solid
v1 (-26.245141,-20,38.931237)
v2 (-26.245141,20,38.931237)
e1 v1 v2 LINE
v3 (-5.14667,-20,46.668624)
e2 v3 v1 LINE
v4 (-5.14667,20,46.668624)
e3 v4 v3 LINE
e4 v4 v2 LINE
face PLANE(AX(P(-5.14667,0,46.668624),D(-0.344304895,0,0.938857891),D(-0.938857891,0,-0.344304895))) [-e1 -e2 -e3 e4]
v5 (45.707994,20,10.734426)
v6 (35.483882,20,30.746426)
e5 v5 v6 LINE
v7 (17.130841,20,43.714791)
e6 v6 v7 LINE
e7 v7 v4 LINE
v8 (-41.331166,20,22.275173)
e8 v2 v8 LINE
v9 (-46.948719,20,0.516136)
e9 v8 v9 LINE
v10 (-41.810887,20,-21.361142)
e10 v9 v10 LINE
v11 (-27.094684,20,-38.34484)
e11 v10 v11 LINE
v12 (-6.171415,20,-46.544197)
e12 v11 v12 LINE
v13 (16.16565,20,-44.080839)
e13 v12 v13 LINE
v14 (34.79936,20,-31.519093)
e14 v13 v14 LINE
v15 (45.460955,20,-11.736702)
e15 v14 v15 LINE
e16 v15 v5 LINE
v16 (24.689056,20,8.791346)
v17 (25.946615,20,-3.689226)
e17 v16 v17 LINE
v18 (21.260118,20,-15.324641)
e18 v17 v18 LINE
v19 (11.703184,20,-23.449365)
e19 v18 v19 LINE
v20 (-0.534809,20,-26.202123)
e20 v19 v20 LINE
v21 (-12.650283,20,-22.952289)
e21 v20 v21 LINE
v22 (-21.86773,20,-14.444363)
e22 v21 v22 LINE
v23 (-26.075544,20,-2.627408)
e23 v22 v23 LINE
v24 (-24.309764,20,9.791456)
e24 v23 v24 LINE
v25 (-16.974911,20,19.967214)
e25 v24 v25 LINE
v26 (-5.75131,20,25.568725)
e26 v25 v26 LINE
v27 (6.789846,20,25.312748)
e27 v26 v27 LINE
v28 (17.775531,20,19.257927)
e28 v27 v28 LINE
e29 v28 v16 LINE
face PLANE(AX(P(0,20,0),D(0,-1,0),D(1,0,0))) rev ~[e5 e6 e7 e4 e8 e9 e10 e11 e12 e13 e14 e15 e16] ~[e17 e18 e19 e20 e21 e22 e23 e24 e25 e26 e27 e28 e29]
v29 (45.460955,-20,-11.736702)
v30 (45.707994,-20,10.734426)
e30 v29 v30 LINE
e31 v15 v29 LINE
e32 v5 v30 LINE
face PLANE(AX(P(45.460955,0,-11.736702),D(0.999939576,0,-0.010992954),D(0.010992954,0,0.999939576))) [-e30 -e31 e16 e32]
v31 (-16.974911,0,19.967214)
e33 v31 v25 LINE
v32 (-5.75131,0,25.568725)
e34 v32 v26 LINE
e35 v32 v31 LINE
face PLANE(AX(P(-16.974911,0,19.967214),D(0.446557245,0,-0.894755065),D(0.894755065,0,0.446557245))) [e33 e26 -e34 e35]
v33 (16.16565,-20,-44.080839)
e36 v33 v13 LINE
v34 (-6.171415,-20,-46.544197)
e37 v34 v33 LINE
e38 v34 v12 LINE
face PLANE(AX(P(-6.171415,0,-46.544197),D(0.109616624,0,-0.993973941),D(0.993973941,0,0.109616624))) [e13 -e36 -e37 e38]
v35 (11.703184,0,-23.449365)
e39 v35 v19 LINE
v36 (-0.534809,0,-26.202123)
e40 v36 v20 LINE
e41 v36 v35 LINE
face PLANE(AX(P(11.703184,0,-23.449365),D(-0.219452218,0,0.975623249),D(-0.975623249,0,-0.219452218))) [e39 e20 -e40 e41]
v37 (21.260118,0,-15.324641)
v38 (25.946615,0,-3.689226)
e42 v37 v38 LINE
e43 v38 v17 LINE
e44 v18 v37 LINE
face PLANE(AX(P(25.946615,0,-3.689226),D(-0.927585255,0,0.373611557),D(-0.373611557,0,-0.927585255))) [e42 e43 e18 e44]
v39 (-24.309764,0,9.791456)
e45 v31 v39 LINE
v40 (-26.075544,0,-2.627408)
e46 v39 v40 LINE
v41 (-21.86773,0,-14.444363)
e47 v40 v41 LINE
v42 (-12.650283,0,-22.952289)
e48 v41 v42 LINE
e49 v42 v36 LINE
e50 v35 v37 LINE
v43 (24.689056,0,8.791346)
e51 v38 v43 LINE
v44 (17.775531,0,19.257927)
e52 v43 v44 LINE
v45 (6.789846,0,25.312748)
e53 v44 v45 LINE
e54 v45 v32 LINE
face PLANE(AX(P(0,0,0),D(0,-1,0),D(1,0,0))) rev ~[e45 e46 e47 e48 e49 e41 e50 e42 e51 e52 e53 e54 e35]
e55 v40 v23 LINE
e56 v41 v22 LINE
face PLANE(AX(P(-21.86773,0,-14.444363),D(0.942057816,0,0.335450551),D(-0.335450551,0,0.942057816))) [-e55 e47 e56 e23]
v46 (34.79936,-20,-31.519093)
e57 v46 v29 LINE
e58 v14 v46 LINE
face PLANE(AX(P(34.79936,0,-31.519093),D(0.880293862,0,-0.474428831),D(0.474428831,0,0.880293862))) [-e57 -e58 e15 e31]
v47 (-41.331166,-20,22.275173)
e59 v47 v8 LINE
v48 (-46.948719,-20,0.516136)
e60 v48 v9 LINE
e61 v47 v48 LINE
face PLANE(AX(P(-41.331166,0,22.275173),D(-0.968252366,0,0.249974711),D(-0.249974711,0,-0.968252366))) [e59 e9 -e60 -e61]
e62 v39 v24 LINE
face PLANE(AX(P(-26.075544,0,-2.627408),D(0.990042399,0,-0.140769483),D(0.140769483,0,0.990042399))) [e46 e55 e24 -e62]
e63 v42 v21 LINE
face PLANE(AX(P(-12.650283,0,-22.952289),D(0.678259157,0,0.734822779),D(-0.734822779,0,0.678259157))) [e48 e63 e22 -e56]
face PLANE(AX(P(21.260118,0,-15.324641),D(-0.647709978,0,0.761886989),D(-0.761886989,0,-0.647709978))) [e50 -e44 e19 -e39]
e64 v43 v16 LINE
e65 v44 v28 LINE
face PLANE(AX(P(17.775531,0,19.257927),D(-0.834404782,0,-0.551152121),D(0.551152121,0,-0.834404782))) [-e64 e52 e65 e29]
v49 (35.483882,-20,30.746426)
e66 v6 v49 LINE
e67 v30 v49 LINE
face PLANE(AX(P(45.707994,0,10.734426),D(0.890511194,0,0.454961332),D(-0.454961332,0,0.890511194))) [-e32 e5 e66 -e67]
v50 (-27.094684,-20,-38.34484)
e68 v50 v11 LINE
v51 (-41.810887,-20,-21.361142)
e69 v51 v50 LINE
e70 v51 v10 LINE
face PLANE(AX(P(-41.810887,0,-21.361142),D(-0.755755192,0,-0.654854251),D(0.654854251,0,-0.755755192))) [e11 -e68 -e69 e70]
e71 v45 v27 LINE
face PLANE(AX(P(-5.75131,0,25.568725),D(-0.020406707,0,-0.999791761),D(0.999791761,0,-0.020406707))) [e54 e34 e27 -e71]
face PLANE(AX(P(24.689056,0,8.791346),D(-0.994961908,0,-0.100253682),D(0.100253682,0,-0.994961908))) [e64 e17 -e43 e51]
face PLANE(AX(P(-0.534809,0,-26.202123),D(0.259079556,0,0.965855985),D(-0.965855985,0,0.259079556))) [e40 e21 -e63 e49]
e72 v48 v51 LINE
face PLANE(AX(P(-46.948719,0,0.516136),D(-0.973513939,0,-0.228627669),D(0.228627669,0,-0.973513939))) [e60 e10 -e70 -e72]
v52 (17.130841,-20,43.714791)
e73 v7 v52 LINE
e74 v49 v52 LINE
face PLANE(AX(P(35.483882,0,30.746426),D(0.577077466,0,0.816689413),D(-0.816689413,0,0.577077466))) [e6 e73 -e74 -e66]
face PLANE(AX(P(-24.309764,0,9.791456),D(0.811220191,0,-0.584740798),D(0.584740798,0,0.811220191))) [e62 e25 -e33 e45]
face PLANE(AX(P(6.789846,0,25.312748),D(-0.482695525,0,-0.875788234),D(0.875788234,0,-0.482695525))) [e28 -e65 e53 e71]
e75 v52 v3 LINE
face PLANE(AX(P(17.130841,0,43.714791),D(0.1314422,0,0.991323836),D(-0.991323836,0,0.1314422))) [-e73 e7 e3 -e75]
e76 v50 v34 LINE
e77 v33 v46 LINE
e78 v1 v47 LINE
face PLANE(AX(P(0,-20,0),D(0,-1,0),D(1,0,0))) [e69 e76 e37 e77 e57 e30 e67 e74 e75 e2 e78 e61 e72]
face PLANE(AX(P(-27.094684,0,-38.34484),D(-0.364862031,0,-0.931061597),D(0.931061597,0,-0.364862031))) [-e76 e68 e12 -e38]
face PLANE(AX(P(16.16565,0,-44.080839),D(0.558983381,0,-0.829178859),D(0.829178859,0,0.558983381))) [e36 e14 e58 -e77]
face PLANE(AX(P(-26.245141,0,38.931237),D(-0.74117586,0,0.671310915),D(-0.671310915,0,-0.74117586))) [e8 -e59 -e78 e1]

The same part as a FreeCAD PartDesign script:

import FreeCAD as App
import Part
import Sketcher
Q = App.Units.Quantity


def add_polygon(sketch, points):
    """Adds a closed chain of lines whose ends are joined by coincident constraints."""
    first, n = sketch.GeometryCount, len(points)
    for a, b in zip(points, points[1:] + points[:1]):
        sketch.addGeometry(Part.LineSegment(App.Vector(*a, 0), App.Vector(*b, 0)), False)
    for i in range(n):
        sketch.addConstraint(Sketcher.Constraint("Coincident", first + i, 2, first + (i + 1) % n, 1))

doc = App.newDocument("Part")
body = doc.addObject("PartDesign::Body", "Body")

sketch1 = body.newObject("Sketcher::SketchObject", "Sketch")
sketch1.AttachmentSupport = (doc.getObject("XZ_Plane"), [""])
sketch1.MapMode = "FlatFace"
add_polygon(sketch1, [(16.16565, -44.080839), (34.79936, -31.519093), (45.460955, -11.736702), (45.707994, 10.734426), (35.483882, 30.746426), (17.130841, 43.714791), (-5.14667, 46.668624), (-26.245141, 38.931237), (-41.331166, 22.275173), (-46.948719, 0.516136), (-41.810887, -21.361142), (-27.094684, -38.34484), (-6.171415, -46.544197)])
add_polygon(sketch1, [(25.946615, -3.689226), (21.260118, -15.324641), (11.703184, -23.449365), (-0.534809, -26.202123), (-12.650283, -22.952289), (-21.86773, -14.444363), (-26.075544, -2.627408), (-24.309764, 9.791456), (-16.974911, 19.967214), (-5.75131, 25.568725), (6.789846, 25.312748), (17.775531, 19.257927), (24.689056, 8.791346)])
sketch1.addConstraint([
    Sketcher.Constraint("DistanceY", 2, 2, 3, 2, Q("20.012 mm")),
    Sketcher.Constraint("DistanceY", 12, 2, 10, 2, Q("5.735999 mm")),
    Sketcher.Constraint("DistanceY", 1, 2, -1, 1, Q("11.736702 mm")),
    Sketcher.Constraint("DistanceY", 3, 2, 5, 2, Q("15.922198 mm")),
    Sketcher.Constraint("DistanceY", 8, 2, 6, 2, Q("38.415101 mm")),
    Sketcher.Constraint("DistanceX", 8, 2, 3, 2, Q("82.432601 mm")),
    Sketcher.Constraint("DistanceX", 11, 2, 14, 2, Q("17.874599 mm")),
    Sketcher.Constraint("DistanceX", 10, 2, 16, 2, Q("14.444401 mm")),
    Sketcher.Constraint("DistanceY", 17, 2, 8, 2, Q("14.960499 mm")),
    Sketcher.Constraint("DistanceX", 20, 2, 21, 2, Q("11.223601 mm")),
    Sketcher.Constraint("DistanceY", 21, 2, 5, 2, Q("21.099899 mm")),
    Sketcher.Constraint("DistanceY", 23, 2, 3, 2, Q("11.488499 mm")),
    Sketcher.Constraint("DistanceY", 24, 2, 22, 2, Q("16.521402 mm")),
    Sketcher.Constraint("Distance", 13, Q("12.543769 mm")),
    Sketcher.Constraint("Distance", 14, Q("12.543768 mm")),
    Sketcher.Constraint("Distance", 15, Q("12.543769 mm")),
    Sketcher.Constraint("Distance", 16, Q("12.543769 mm")),
    Sketcher.Constraint("Distance", 17, Q("12.543769 mm")),
    Sketcher.Constraint("Distance", 18, Q("12.543768 mm")),
    Sketcher.Constraint("Distance", 19, Q("12.54377 mm")),
    Sketcher.Constraint("Distance", 20, Q("12.543768 mm")),
    Sketcher.Constraint("Distance", 21, Q("12.543769 mm")),
    Sketcher.Constraint("Distance", 22, Q("12.543768 mm")),
    Sketcher.Constraint("Distance", 23, Q("12.543769 mm")),
    Sketcher.Constraint("Distance", 24, Q("12.543769 mm")),
    Sketcher.Constraint("Distance", 25, Q("12.543769 mm")),
    Sketcher.Constraint("DistanceX", -1, 1, 0, 2, Q("34.79936 mm")),
    Sketcher.Constraint("DistanceX", -1, 1, 4, 2, Q("17.130841 mm")),
    Sketcher.Constraint("DistanceY", -1, 1, 4, 2, Q("43.714791 mm")),
    Sketcher.Constraint("DistanceX", 5, 2, -1, 1, Q("5.14667 mm")),
    Sketcher.Constraint("DistanceX", 6, 2, -1, 1, Q("26.245141 mm")),
    Sketcher.Constraint("DistanceX", 8, 2, -1, 1, Q("46.948719 mm")),
    Sketcher.Constraint("DistanceY", 10, 2, -1, 1, Q("38.34484 mm")),
    Sketcher.Constraint("DistanceX", -1, 1, 12, 2, Q("16.16565 mm")),
    Sketcher.Constraint("DistanceY", 13, 2, -1, 1, Q("15.324641 mm")),
    Sketcher.Constraint("DistanceX", 15, 2, -1, 1, Q("0.534809 mm")),
    Sketcher.Constraint("DistanceY", 16, 2, -1, 1, Q("22.952289 mm")),
    Sketcher.Constraint("DistanceX", 17, 2, -1, 1, Q("21.86773 mm")),
    Sketcher.Constraint("DistanceY", 18, 2, -1, 1, Q("2.627408 mm")),
    Sketcher.Constraint("DistanceX", 20, 2, -1, 1, Q("16.974911 mm")),
    Sketcher.Constraint("DistanceX", -1, 1, 23, 2, Q("17.775531 mm")),
    Sketcher.Constraint("DistanceY", 0, 2, 1, 2, Q("19.782391 mm")),
    Sketcher.Constraint("DistanceX", 1, 2, 2, 2, Q("0.247039 mm")),
    Sketcher.Constraint("DistanceY", 1, 2, 2, 2, Q("22.471128 mm")),
    Sketcher.Constraint("DistanceX", 3, 2, 2, 2, Q("10.224112 mm")),
    Sketcher.Constraint("DistanceY", 3, 2, 6, 2, Q("8.184811 mm")),
    Sketcher.Constraint("DistanceY", 7, 2, 5, 2, Q("24.393451 mm")),
    Sketcher.Constraint("DistanceX", 7, 2, 3, 2, Q("76.815048 mm")),
    Sketcher.Constraint("DistanceX", 8, 2, 9, 2, Q("5.137832 mm")),
    Sketcher.Constraint("DistanceY", 9, 2, 8, 2, Q("21.877278 mm")),
    Sketcher.Constraint("DistanceX", 10, 2, 11, 2, Q("20.923269 mm")),
    Sketcher.Constraint("DistanceY", 11, 2, 14, 2, Q("23.094832 mm")),
])
pad1 = body.newObject("PartDesign::Pad", "Pad")
pad1.Profile = sketch1
pad1.Length = 40
pad1.Midplane = True

sketch2 = body.newObject("Sketcher::SketchObject", "Sketch001")
sketch2.AttachmentSupport = (doc.getObject("XZ_Plane"), [""])
sketch2.MapMode = "FlatFace"
add_polygon(sketch2, [(-0.534809, -26.202123), (11.703184, -23.449365), (21.260118, -15.324641), (25.946615, -3.689226), (24.689056, 8.791346), (17.775531, 19.257927), (6.789846, 25.312748), (-5.75131, 25.568725), (-16.974911, 19.967214), (-24.309764, 9.791456), (-26.075544, -2.627408), (-21.86773, -14.444363), (-12.650283, -22.952289)])
sketch2.addConstraint([
    Sketcher.Constraint("Equal", 0, 1),
    Sketcher.Constraint("Equal", 1, 2),
    Sketcher.Constraint("Equal", 2, 3),
    Sketcher.Constraint("Equal", 3, 4),
    Sketcher.Constraint("Equal", 4, 5),
    Sketcher.Constraint("Equal", 5, 6),
    Sketcher.Constraint("Equal", 6, 7),
    Sketcher.Constraint("Equal", 7, 8),
    Sketcher.Constraint("Equal", 8, 9),
    Sketcher.Constraint("Equal", 9, 10),
    Sketcher.Constraint("Equal", 10, 11),
    Sketcher.Constraint("Equal", 11, 12),
    Sketcher.Constraint("DistanceY", 3, 2, 5, 2, Q("16.521402 mm")),
    Sketcher.Constraint("DistanceY", 4, 2, 6, 2, Q("6.310798 mm")),
    Sketcher.Constraint("DistanceX", 7, 2, 6, 2, Q("11.223601 mm")),
    Sketcher.Constraint("DistanceX", 11, 2, 1, 2, Q("33.910401 mm")),
    Sketcher.Constraint("Distance", 0, Q("12.543769 mm")),
    Sketcher.Constraint("DistanceY", 1, 2, -1, 1, Q("15.324641 mm")),
    Sketcher.Constraint("DistanceX", -1, 1, 4, 2, Q("17.775531 mm")),
    Sketcher.Constraint("DistanceX", 6, 2, -1, 1, Q("5.75131 mm")),
    Sketcher.Constraint("DistanceY", 9, 2, -1, 1, Q("2.627408 mm")),
    Sketcher.Constraint("DistanceX", 10, 2, -1, 1, Q("21.86773 mm")),
    Sketcher.Constraint("DistanceY", 11, 2, -1, 1, Q("22.952289 mm")),
    Sketcher.Constraint("DistanceX", 12, 2, -1, 1, Q("0.534809 mm")),
    Sketcher.Constraint("DistanceX", 0, 2, 2, 2, Q("14.243431 mm")),
    Sketcher.Constraint("DistanceY", 0, 2, 2, 2, Q("19.760139 mm")),
])
pad2 = body.newObject("PartDesign::Pad", "Pad001")
pad2.Profile = sketch2
pad2.Length = 20

doc.recompute()
